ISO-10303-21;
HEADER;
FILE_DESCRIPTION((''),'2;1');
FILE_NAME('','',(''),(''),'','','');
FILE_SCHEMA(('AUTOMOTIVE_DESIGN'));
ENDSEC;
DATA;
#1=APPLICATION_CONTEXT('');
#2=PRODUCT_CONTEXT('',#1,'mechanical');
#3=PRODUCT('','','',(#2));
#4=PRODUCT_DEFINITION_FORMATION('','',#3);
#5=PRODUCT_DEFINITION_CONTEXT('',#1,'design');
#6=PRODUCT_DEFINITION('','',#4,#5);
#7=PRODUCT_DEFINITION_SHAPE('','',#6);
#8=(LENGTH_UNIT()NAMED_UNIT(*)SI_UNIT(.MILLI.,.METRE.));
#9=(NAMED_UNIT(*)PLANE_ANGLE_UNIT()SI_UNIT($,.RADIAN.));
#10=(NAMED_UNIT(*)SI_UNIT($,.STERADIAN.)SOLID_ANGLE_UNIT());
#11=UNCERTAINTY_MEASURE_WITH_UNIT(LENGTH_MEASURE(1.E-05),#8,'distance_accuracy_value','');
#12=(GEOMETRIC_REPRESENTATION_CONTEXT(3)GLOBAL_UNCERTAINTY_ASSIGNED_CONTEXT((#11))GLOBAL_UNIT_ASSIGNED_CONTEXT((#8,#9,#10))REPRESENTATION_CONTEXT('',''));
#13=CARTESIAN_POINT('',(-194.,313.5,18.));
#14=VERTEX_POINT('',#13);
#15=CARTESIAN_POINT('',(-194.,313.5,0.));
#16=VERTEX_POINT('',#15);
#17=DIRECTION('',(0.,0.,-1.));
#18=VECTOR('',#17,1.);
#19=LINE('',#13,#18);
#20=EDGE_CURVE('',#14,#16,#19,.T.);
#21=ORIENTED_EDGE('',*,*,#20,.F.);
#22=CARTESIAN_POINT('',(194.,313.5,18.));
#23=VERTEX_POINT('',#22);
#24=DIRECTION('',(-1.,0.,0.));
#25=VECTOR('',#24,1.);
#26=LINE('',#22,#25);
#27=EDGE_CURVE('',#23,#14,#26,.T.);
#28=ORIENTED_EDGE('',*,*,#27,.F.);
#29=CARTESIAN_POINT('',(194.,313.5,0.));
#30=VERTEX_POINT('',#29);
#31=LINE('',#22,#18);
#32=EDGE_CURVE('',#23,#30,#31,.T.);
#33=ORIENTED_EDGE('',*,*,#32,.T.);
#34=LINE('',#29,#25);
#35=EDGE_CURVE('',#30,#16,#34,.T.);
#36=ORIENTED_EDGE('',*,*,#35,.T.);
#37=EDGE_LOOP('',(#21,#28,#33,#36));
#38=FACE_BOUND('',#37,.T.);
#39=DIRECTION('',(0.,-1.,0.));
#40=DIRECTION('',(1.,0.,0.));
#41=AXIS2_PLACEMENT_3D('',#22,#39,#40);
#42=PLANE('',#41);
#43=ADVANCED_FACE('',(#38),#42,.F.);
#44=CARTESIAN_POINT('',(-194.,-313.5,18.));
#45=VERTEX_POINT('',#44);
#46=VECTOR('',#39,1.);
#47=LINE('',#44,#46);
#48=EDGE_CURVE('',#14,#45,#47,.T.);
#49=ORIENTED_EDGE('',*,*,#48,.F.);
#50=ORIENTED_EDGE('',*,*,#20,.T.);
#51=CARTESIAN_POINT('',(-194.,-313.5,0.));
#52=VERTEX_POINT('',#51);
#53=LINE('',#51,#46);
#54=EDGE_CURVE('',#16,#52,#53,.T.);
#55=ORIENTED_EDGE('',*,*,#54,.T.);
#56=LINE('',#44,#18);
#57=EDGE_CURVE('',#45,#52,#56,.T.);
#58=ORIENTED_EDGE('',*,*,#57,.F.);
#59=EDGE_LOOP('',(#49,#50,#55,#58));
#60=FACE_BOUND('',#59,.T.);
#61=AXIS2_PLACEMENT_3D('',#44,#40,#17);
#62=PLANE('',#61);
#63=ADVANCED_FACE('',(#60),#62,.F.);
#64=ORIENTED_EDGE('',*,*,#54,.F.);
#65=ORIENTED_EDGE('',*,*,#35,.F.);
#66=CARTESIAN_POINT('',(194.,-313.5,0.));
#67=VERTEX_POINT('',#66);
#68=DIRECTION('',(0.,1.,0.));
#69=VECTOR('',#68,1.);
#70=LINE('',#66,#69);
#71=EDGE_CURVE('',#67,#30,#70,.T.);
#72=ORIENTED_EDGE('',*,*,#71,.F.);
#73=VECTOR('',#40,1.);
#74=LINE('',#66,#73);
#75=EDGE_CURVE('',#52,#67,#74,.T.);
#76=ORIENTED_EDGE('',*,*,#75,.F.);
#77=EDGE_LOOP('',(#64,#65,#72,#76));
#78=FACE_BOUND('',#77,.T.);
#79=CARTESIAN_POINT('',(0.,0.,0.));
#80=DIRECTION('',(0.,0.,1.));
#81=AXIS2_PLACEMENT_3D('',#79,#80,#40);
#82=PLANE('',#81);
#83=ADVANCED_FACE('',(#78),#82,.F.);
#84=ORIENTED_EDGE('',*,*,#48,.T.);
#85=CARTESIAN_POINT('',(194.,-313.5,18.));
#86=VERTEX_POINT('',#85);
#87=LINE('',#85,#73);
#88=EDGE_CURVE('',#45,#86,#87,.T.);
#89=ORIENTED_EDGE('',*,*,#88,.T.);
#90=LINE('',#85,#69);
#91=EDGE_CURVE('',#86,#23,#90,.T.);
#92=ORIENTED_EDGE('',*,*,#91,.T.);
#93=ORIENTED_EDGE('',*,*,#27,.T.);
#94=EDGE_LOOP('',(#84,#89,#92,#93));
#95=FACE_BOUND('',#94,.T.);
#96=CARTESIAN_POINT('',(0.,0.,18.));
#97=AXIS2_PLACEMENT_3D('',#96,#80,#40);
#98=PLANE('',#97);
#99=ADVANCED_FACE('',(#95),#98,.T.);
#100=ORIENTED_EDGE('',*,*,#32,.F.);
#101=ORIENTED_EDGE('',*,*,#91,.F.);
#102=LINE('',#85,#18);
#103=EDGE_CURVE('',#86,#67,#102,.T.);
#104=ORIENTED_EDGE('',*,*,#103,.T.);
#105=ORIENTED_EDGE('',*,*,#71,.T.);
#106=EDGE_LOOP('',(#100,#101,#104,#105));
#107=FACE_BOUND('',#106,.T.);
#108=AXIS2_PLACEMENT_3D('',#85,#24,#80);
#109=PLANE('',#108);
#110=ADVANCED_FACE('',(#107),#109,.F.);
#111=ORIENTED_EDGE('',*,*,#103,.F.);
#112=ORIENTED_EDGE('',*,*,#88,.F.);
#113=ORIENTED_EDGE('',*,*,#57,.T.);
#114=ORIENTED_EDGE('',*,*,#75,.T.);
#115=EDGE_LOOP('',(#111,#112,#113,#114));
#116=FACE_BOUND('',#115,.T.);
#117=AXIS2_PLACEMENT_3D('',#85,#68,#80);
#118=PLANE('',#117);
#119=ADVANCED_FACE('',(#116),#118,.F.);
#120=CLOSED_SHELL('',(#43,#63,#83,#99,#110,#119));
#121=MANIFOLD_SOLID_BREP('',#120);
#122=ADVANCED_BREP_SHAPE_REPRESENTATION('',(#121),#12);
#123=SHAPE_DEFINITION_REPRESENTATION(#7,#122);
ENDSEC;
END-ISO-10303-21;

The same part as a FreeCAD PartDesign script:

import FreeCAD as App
import Part
import Sketcher

V = App.Vector


def add_polygon(sketch, points):
    """Adds a closed chain of lines whose ends are joined by coincident constraints."""
    first, n = sketch.GeometryCount, len(points)
    for a, b in zip(points, points[1:] + points[:1]):
        sketch.addGeometry(Part.LineSegment(App.Vector(*a, 0), App.Vector(*b, 0)), False)
    for i in range(n):
        sketch.addConstraint(Sketcher.Constraint("Coincident", first + i, 2, first + (i + 1) % n, 1))

doc = App.newDocument("Part")
params = doc.addObject("Spreadsheet::Sheet", "Params")
for row, (alias, value) in enumerate([
    ("sketch1_width", "388 mm"),
    ("sketch1_height", "627 mm"),
    ("pad1_length", "18 mm"),
], start=1):
    params.set(f"A{row}", alias)
    params.set(f"B{row}", "=" + value)
    params.setAlias(f"B{row}", alias)

body = doc.addObject("PartDesign::Body", "Body")

# Sketch on XY plane
sketch1 = body.newObject("Sketcher::SketchObject", "Sketch")
sketch1.AttachmentSupport = (doc.getObject("XY_Plane"), [""])
sketch1.MapMode = "FlatFace"
add_polygon(sketch1, [(-194, 313.5), (-194, -313.5), (194, -313.5), (194, 313.5)])  # lines 0-3
sketch1.addConstraint([
    Sketcher.Constraint("Vertical", 0),
    Sketcher.Constraint("Horizontal", 1),
    Sketcher.Constraint("Vertical", 2),
    Sketcher.Constraint("Horizontal", 3),
    Sketcher.Constraint("Symmetric", 0, 2, 2, 2, -1, 1),
    Sketcher.Constraint("DistanceX", 1, 1, 1, 2, 388.0),
    Sketcher.Constraint("DistanceY", 0, 2, 0, 1, 627.0),
])
sketch1.setExpression("Constraints[9]", "Params.sketch1_width")
sketch1.setExpression("Constraints[10]", "Params.sketch1_height")
pad1 = body.newObject("PartDesign::Pad", "Pad")
pad1.Profile = sketch1
pad1.setExpression("Length", "Params.pad1_length")

doc.recompute()
